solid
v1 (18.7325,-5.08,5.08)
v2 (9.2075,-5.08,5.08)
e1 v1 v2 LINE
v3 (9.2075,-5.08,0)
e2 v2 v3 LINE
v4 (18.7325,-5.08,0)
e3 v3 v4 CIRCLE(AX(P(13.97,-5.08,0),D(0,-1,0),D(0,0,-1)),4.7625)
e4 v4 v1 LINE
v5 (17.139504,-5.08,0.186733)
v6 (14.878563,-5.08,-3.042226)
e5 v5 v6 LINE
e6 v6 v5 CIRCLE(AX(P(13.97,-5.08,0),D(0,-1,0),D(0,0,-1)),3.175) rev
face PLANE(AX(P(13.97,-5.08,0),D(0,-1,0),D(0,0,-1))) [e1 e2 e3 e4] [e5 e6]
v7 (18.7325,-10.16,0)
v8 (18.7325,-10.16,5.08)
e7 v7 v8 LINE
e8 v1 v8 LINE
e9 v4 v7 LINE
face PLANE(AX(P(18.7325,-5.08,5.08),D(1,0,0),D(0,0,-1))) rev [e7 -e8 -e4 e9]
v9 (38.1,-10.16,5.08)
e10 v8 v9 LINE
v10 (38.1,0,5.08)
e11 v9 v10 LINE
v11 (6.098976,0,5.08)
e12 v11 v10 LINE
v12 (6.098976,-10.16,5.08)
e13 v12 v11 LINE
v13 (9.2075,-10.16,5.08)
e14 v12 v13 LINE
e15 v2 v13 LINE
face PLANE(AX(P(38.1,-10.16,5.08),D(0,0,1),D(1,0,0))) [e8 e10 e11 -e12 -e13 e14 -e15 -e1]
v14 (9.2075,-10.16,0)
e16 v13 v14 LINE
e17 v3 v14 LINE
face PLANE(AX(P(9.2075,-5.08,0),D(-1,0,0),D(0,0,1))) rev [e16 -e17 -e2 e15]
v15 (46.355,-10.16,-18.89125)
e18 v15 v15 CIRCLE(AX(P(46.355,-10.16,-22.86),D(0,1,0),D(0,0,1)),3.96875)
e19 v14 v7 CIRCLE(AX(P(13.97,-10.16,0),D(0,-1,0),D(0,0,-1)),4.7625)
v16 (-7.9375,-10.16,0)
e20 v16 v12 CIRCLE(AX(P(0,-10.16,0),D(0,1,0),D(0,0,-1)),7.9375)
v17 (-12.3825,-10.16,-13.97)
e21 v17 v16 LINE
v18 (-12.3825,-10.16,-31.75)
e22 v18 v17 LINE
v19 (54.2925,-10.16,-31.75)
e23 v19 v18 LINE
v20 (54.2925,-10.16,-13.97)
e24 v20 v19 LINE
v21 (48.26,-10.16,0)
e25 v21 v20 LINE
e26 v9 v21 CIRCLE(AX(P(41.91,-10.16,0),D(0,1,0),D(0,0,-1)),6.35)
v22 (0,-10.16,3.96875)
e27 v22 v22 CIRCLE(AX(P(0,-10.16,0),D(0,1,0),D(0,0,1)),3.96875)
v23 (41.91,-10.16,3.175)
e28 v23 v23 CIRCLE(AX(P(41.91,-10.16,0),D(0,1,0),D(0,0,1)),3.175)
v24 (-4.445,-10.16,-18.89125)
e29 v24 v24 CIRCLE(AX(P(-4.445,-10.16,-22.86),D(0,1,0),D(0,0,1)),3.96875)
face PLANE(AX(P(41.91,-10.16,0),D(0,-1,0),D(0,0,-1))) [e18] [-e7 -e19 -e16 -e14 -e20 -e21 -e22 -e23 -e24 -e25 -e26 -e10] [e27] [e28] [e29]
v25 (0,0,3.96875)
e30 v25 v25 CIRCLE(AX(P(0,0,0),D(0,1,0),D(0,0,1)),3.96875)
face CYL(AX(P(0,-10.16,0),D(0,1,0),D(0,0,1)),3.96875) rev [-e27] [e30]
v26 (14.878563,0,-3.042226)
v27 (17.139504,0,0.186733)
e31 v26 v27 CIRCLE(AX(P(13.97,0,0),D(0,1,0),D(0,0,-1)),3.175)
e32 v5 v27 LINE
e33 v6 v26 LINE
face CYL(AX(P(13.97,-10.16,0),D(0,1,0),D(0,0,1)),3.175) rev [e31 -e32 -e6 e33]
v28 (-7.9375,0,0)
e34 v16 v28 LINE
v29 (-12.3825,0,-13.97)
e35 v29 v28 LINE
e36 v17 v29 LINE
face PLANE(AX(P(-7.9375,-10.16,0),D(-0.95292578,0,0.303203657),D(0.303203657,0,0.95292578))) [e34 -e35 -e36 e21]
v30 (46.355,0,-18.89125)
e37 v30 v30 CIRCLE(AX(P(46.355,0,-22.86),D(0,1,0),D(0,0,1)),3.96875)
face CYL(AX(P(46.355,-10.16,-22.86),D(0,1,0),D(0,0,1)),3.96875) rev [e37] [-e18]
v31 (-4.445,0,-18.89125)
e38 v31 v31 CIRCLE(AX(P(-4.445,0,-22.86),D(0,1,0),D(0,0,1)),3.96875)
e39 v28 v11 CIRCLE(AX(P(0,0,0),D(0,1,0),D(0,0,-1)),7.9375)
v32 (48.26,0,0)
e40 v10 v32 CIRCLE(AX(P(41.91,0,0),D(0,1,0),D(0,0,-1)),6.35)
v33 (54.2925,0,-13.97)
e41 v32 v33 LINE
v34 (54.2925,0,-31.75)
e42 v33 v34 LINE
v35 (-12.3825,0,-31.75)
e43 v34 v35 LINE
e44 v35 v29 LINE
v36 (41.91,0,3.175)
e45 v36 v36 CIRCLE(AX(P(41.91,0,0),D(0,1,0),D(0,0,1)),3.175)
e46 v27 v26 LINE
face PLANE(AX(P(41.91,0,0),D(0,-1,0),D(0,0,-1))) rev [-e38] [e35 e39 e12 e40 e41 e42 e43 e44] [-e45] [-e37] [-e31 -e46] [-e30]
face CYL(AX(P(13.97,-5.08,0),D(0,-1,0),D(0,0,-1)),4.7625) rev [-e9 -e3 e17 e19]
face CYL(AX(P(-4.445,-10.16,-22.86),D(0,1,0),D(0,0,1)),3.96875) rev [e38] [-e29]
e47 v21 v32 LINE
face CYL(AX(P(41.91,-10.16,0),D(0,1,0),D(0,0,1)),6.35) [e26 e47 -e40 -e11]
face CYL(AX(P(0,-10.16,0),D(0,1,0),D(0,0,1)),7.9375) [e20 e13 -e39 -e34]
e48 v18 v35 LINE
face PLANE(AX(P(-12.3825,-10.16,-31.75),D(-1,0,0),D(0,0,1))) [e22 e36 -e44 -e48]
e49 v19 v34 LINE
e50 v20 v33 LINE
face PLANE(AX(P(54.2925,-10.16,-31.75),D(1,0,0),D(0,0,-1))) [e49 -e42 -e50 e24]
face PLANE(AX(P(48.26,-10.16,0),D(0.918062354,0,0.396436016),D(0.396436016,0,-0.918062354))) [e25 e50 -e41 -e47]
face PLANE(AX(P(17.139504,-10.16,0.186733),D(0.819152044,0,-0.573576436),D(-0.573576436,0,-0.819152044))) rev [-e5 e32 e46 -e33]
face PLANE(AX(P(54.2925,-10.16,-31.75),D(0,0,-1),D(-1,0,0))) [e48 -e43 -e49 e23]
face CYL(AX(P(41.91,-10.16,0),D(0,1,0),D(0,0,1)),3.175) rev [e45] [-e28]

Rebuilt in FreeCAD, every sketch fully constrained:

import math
import FreeCAD as App
import Part
import Sketcher
from FreeCAD import Vector
Q = App.Units.Quantity

doc = App.newDocument("Part")
params = doc.addObject("Spreadsheet::Sheet", "Params")
for row, (alias, value) in enumerate([
    ("sketch1_diameter", "0.25 in"),
    ("sketch1_radius", "0.25 in"),
    ("sketch1_diameter2", "0.3125 in"),
    ("sketch1_height", "0.7 in"),
    ("sketch1_radius2", "0.3125 in"),
    ("pad1_length", "0.4 in"),
    ("sketch2_height", "0.2 in"),
    ("sketch2_radius", "0.1875 in"),
    ("pocket1_length", "0.2 in"),
], start=1):
    params.set(f"A{row}", alias)
    params.set(f"B{row}", "=" + value)
    params.setAlias(f"B{row}", alias)

body = doc.addObject("PartDesign::Body", "Body")

# Sketch on XZ plane
sketch1 = body.newObject("Sketcher::SketchObject", "Sketch")
sketch1.AttachmentSupport = (doc.getObject("XZ_Plane"), [""])
sketch1.MapMode = "FlatFace"
sketch1.addGeometry(Part.LineSegment(Vector(6.098976, 5.08, 0), Vector(38.1, 5.08, 0)), False)
sketch1.addGeometry(Part.ArcOfCircle(Part.Circle(Vector(41.91, 0, 0), Vector(0, 0, 1), 6.35), math.radians(0), math.radians(126.869898)), False)
sketch1.addGeometry(Part.LineSegment(Vector(48.26, 0, 0), Vector(54.2925, -13.97, 0)), False)
sketch1.addGeometry(Part.LineSegment(Vector(54.2925, -13.97, 0), Vector(54.2925, -31.75, 0)), False)
sketch1.addGeometry(Part.LineSegment(Vector(54.2925, -31.75, 0), Vector(-12.3825, -31.75, 0)), False)
sketch1.addGeometry(Part.LineSegment(Vector(-12.3825, -31.75, 0), Vector(-12.3825, -13.97, 0)), False)
sketch1.addGeometry(Part.LineSegment(Vector(-12.3825, -13.97, 0), Vector(-7.9375, 0, 0)), False)
sketch1.addGeometry(Part.ArcOfCircle(Part.Circle(Vector(0, 0, 0), Vector(0, 0, 1), 7.9375), math.radians(39.79182), math.radians(180)), False)
sketch1.addGeometry(Part.Circle(Vector(41.91, 0, 0), Vector(0, 0, 1), 3.175), False)
sketch1.addGeometry(Part.ArcOfCircle(Part.Circle(Vector(13.97, 0, 0), Vector(0, 0, 1), 3.175), math.radians(3.371715), math.radians(286.628285)), False)
sketch1.addGeometry(Part.LineSegment(Vector(14.878563, -3.042226, 0), Vector(17.139504, 0.186733, 0)), False)
sketch1.addGeometry(Part.Circle(Vector(0, 0, 0), Vector(0, 0, 1), 3.96875), False)
sketch1.addGeometry(Part.Circle(Vector(46.355, -22.86, 0), Vector(0, 0, 1), 3.96875), False)
sketch1.addGeometry(Part.Circle(Vector(-4.445, -22.86, 0), Vector(0, 0, 1), 3.96875), False)
sketch1.addConstraint(Sketcher.Constraint("Coincident", 0, 2, 1, 2))
sketch1.addConstraint(Sketcher.Constraint("Coincident", 1, 1, 2, 1))
sketch1.addConstraint(Sketcher.Constraint("Coincident", 2, 2, 3, 1))
sketch1.addConstraint(Sketcher.Constraint("Coincident", 3, 2, 4, 1))
sketch1.addConstraint(Sketcher.Constraint("Coincident", 4, 2, 5, 1))
sketch1.addConstraint(Sketcher.Constraint("Coincident", 5, 2, 6, 1))
sketch1.addConstraint(Sketcher.Constraint("Coincident", 6, 2, 7, 2))
sketch1.addConstraint(Sketcher.Constraint("Coincident", 7, 1, 0, 1))
sketch1.addConstraint(Sketcher.Constraint("Coincident", 9, 1, 10, 2))
sketch1.addConstraint(Sketcher.Constraint("Coincident", 10, 1, 9, 2))
sketch1.addConstraint(Sketcher.Constraint("Horizontal", 0))
sketch1.addConstraint(Sketcher.Constraint("Vertical", 3))
sketch1.addConstraint(Sketcher.Constraint("Horizontal", 4))
sketch1.addConstraint(Sketcher.Constraint("Vertical", 5))
sketch1.addConstraint(Sketcher.Constraint("Coincident", 7, 3, -1, 1))
sketch1.addConstraint(Sketcher.Constraint("Coincident", 11, 3, -1, 1))
sketch1.addConstraint(Sketcher.Constraint("Coincident", 8, 3, 1, 3))
sketch1.addConstraint(Sketcher.Constraint("Equal", 8, 9))
sketch1.addConstraint(Sketcher.Constraint("Equal", 11, 12))
sketch1.addConstraint(Sketcher.Constraint("Equal", 12, 13))
sketch1.addConstraint(Sketcher.Constraint("PointOnObject", 1, 3, -1))
sketch1.addConstraint(Sketcher.Constraint("PointOnObject", 9, 3, -1))
sketch1.addConstraint(Sketcher.Constraint("PointOnObject", 1, 1, -1))
sketch1.addConstraint(Sketcher.Constraint("PointOnObject", 6, 2, -1))
sketch1.addConstraint(Sketcher.Constraint("Horizontal", 12, 3, 13, 3))
sketch1.addConstraint(Sketcher.Constraint("Horizontal", 2, 2, 5, 2))
sketch1.addConstraint(Sketcher.Constraint("Diameter", 8, Q("0.25 in")))
sketch1.addConstraint(Sketcher.Constraint("Radius", 1, Q("0.25 in")))
sketch1.addConstraint(Sketcher.Constraint("Diameter", 11, Q("0.3125 in")))
sketch1.addConstraint(Sketcher.Constraint("DistanceY", 3, 2, 3, 1, Q("0.7 in")))
sketch1.addConstraint(Sketcher.Constraint("Angle", 10, Q("55 deg")))
sketch1.addConstraint(Sketcher.Constraint("Radius", 7, Q("0.3125 in")))
sketch1.addConstraint(Sketcher.Constraint("DistanceX", 13, 3, 12, 3, Q("2 in")))
sketch1.addConstraint(Sketcher.Constraint("DistanceY", 12, 3, -1, 1, Q("0.9 in")))
sketch1.addConstraint(Sketcher.Constraint("DistanceX", -1, 1, 0, 2, Q("1.5 in")))
sketch1.addConstraint(Sketcher.Constraint("DistanceY", -1, 1, 0, 2, Q("0.2 in")))
sketch1.addConstraint(Sketcher.Constraint("DistanceX", 9, 3, 1, 3, Q("1.1 in")))
sketch1.addConstraint(Sketcher.Constraint("DistanceX", 4, 2, 4, 1, Q("2.625 in")))
sketch1.addConstraint(Sketcher.Constraint("DistanceY", 2, 2, -1, 1, Q("0.55 in")))
sketch1.addConstraint(Sketcher.Constraint("DistanceX", -1, 1, 12, 3, Q("1.825 in")))
sketch1.addConstraint(Sketcher.Constraint("DistanceX", 12, 3, 2, 2, Q("0.3125 in")))
sketch1.addConstraint(Sketcher.Constraint("Distance", 10, 3.941831))
sketch1.setExpression("Constraints[26]", "Params.sketch1_diameter")
sketch1.setExpression("Constraints[27]", "Params.sketch1_radius")
sketch1.setExpression("Constraints[28]", "Params.sketch1_diameter2")
sketch1.setExpression("Constraints[29]", "Params.sketch1_height")
sketch1.setExpression("Constraints[31]", "Params.sketch1_radius2")
pad1 = body.newObject("PartDesign::Pad", "Pad")
pad1.Profile = sketch1
pad1.setExpression("Length", "Params.pad1_length")

# Sketch on XZ plane
sketch2 = body.newObject("Sketcher::SketchObject", "Sketch001")
sketch2.AttachmentSupport = (doc.getObject("XZ_Plane"), [""])
sketch2.MapMode = "FlatFace"
sketch2.AttachmentOffset = App.Placement(Vector(0, 0, 0.4 * 25.4), App.Rotation())
sketch2.addGeometry(Part.LineSegment(Vector(9.2075, 5.08, 0), Vector(9.2075, 0, 0)), False)
sketch2.addGeometry(Part.ArcOfCircle(Part.Circle(Vector(13.97, 0, 0), Vector(0, 0, 1), 4.7625), math.radians(180), math.radians(360)), False)
sketch2.addGeometry(Part.LineSegment(Vector(18.7325, 0, 0), Vector(18.7325, 5.08, 0)), False)
sketch2.addGeometry(Part.LineSegment(Vector(18.7325, 5.08, 0), Vector(9.2075, 5.08, 0)), False)
sketch2.addConstraint(Sketcher.Constraint("Tangent", 0, 2, 1, 1))
sketch2.addConstraint(Sketcher.Constraint("Tangent", 1, 2, 2, 1))
sketch2.addConstraint(Sketcher.Constraint("Coincident", 2, 2, 3, 1))
sketch2.addConstraint(Sketcher.Constraint("Coincident", 3, 2, 0, 1))
sketch2.addConstraint(Sketcher.Constraint("Vertical", 0))
sketch2.addConstraint(Sketcher.Constraint("Vertical", 2))
sketch2.addConstraint(Sketcher.Constraint("Horizontal", 3))
sketch2.addConstraint(Sketcher.Constraint("PointOnObject", 1, 3, -1))
sketch2.addConstraint(Sketcher.Constraint("DistanceY", 0, 2, 0, 1, Q("0.2 in")))
sketch2.addConstraint(Sketcher.Constraint("Radius", 1, Q("0.1875 in")))
sketch2.addConstraint(Sketcher.Constraint("DistanceX", -1, 1, 1, 3, Q("0.55 in")))
sketch2.setExpression("Constraints[8]", "Params.sketch2_height")
sketch2.setExpression("Constraints[9]", "Params.sketch2_radius")
pocket1 = body.newObject("PartDesign::Pocket", "Pocket")
pocket1.Profile = sketch2
pocket1.setExpression("Length", "Params.pocket1_length")

doc.recompute()
